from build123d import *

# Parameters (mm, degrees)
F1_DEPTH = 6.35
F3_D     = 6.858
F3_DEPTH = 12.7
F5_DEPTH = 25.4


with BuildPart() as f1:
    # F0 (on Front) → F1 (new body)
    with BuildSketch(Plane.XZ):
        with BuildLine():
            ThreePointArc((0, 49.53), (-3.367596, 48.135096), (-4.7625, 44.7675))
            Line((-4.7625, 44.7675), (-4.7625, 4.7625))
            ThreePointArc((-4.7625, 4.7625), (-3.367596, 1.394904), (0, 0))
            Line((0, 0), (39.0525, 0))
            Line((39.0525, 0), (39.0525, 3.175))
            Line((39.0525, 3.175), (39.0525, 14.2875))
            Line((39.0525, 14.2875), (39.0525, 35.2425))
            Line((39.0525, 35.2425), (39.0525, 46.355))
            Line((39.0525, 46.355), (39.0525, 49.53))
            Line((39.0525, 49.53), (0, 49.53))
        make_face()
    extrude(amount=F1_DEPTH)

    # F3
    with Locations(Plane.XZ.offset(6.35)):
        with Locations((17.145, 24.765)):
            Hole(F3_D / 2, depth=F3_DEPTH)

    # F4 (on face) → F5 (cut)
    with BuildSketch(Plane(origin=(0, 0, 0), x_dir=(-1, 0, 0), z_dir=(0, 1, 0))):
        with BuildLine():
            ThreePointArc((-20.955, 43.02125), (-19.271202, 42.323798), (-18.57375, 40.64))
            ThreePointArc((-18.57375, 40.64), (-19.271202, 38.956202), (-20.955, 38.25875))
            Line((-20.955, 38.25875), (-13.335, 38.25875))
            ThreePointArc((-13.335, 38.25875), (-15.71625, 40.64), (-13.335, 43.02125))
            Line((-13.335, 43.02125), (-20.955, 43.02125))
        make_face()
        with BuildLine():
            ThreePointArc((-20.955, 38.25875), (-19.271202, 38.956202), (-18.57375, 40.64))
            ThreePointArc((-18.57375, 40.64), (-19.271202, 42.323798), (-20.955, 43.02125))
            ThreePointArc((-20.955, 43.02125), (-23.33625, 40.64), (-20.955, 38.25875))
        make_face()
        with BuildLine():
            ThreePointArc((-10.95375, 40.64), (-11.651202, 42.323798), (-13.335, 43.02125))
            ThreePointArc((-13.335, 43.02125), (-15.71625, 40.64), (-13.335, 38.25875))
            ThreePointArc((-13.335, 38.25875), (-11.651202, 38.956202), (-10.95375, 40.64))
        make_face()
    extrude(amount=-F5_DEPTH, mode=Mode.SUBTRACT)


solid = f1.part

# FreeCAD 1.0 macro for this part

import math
import FreeCAD as App
import Part
import Sketcher

V = App.Vector
Q = App.Units.Quantity

doc = App.newDocument("Part")
body = doc.addObject("PartDesign::Body", "Body")

# Sketch on XZ plane
sketch1 = body.newObject("Sketcher::SketchObject", "Sketch")
sketch1.AttachmentSupport = (doc.getObject("XZ_Plane"), [""])
sketch1.MapMode = "FlatFace"
sketch1.addGeometry(Part.ArcOfCircle(Part.Circle(V(0, 44.7675, 0), V(0, 0, 1), 4.7625), math.radians(90.000002), math.radians(179.999998)), False)
sketch1.addGeometry(Part.LineSegment(V(-4.7625, 44.7675, 0), V(-4.7625, 4.7625, 0)), False)
sketch1.addGeometry(Part.ArcOfCircle(Part.Circle(V(0, 4.7625, 0), V(0, 0, 1), 4.7625), math.radians(-179.999998), math.radians(-90.000002)), False)
sketch1.addGeometry(Part.LineSegment(V(0, 0, 0), V(39.0525, 0, 0)), False)
sketch1.addGeometry(Part.LineSegment(V(39.0525, 0, 0), V(39.0525, 49.53, 0)), False)
sketch1.addGeometry(Part.LineSegment(V(39.0525, 49.53, 0), V(0, 49.53, 0)), False)
sketch1.addConstraint(Sketcher.Constraint("Tangent", 0, 2, 1, 1))
sketch1.addConstraint(Sketcher.Constraint("Tangent", 1, 2, 2, 1))
sketch1.addConstraint(Sketcher.Constraint("Tangent", 2, 2, 3, 1))
sketch1.addConstraint(Sketcher.Constraint("Coincident", 3, 2, 4, 1))
sketch1.addConstraint(Sketcher.Constraint("Coincident", 4, 2, 5, 1))
sketch1.addConstraint(Sketcher.Constraint("Tangent", 5, 2, 0, 1))
sketch1.addConstraint(Sketcher.Constraint("Vertical", 1))
sketch1.addConstraint(Sketcher.Constraint("Horizontal", 3))
sketch1.addConstraint(Sketcher.Constraint("Vertical", 4))
sketch1.addConstraint(Sketcher.Constraint("Horizontal", 5))
sketch1.addConstraint(Sketcher.Constraint("Coincident", 2, 2, -1, 1))
sketch1.addConstraint(Sketcher.Constraint("Equal", 0, 2))
sketch1.addConstraint(Sketcher.Constraint("Radius", 0, Q("0.1875 in")))
sketch1.addConstraint(Sketcher.Constraint("DistanceY", 4, 1, 4, 2, Q("1.95 in")))
sketch1.addConstraint(Sketcher.Constraint("DistanceX", 3, 1, 3, 2, Q("1.5375 in")))
pad1 = body.newObject("PartDesign::Pad", "Pad")
pad1.Profile = sketch1
pad1.Length = Q("0.25 in")

# Sketch on XZ plane
sketch2 = body.newObject("Sketcher::SketchObject", "Sketch001")
sketch2.AttachmentSupport = (doc.getObject("XZ_Plane"), [""])
sketch2.MapMode = "FlatFace"
sketch2.AttachmentOffset = App.Placement(V(0, 0, 0.25 * 25.4), App.Rotation())
sketch2.addGeometry(Part.Circle(V(17.145, 24.765, 0), V(0, 0, 1), 3.429), False)
sketch2.addConstraint(Sketcher.Constraint("Diameter", 0, Q("0.27 in")))
sketch2.addConstraint(Sketcher.Constraint("DistanceX", -1, 1, 0, 3, Q("0.675 in")))
sketch2.addConstraint(Sketcher.Constraint("DistanceY", -1, 1, 0, 3, Q("0.975 in")))
doc.recompute()
hole = body.newObject("PartDesign::Hole", "Hole")
hole.Profile = sketch2
hole.ThreadType = "None"
hole.Diameter = Q("0.27 in")
hole.DepthType = "Dimension"
hole.Depth = Q("0.5 in")
hole.DrillPoint = "Flat"

# Sketch on XZ plane
sketch3 = body.newObject("Sketcher::SketchObject", "Sketch002")
sketch3.AttachmentSupport = (doc.getObject("XZ_Plane"), [""])
sketch3.MapMode = "FlatFace"
sketch3.addGeometry(Part.LineSegment(V(20.955, 38.25875, 0), V(13.335, 38.25875, 0)), False)
sketch3.addGeometry(Part.ArcOfCircle(Part.Circle(V(13.335, 40.64, 0), V(0, 0, 1), 2.38125), math.radians(-179.999998), math.radians(-90.000002)), False)
sketch3.addGeometry(Part.ArcOfCircle(Part.Circle(V(13.335, 40.64, 0), V(0, 0, 1), 2.38125), math.radians(90.000002), math.radians(179.999998)), False)
sketch3.addGeometry(Part.LineSegment(V(13.335, 43.02125, 0), V(20.955, 43.02125, 0)), False)
sketch3.addGeometry(Part.ArcOfCircle(Part.Circle(V(20.955, 40.64, 0), V(0, 0, 1), 2.38125), math.radians(-90), math.radians(90)), False)
sketch3.addConstraint(Sketcher.Constraint("Tangent", 0, 2, 1, 2))
sketch3.addConstraint(Sketcher.Constraint("Tangent", 1, 1, 2, 2))
sketch3.addConstraint(Sketcher.Constraint("Tangent", 2, 1, 3, 1))
sketch3.addConstraint(Sketcher.Constraint("Tangent", 3, 2, 4, 2))
sketch3.addConstraint(Sketcher.Constraint("Tangent", 4, 1, 0, 1))
sketch3.addConstraint(Sketcher.Constraint("Horizontal", 0))
sketch3.addConstraint(Sketcher.Constraint("Horizontal", 3))
sketch3.addConstraint(Sketcher.Constraint("Equal", 1, 2))
sketch3.addConstraint(Sketcher.Constraint("Horizontal", 4, 3, 1, 1))
sketch3.addConstraint(Sketcher.Constraint("DistanceX", 0, 2, 0, 1, Q("0.3 in")))
sketch3.addConstraint(Sketcher.Constraint("Radius", 1, Q("0.09375 in")))
sketch3.addConstraint(Sketcher.Constraint("DistanceY", -1, 1, 1, 3, Q("1.6 in")))
sketch3.addConstraint(Sketcher.Constraint("DistanceX", -1, 1, 1, 3, Q("0.525 in")))
pocket1 = body.newObject("PartDesign::Pocket", "Pocket")
pocket1.Profile = sketch3
pocket1.Length = Q("1 in")
pocket1.Reversed = True

doc.recompute()
